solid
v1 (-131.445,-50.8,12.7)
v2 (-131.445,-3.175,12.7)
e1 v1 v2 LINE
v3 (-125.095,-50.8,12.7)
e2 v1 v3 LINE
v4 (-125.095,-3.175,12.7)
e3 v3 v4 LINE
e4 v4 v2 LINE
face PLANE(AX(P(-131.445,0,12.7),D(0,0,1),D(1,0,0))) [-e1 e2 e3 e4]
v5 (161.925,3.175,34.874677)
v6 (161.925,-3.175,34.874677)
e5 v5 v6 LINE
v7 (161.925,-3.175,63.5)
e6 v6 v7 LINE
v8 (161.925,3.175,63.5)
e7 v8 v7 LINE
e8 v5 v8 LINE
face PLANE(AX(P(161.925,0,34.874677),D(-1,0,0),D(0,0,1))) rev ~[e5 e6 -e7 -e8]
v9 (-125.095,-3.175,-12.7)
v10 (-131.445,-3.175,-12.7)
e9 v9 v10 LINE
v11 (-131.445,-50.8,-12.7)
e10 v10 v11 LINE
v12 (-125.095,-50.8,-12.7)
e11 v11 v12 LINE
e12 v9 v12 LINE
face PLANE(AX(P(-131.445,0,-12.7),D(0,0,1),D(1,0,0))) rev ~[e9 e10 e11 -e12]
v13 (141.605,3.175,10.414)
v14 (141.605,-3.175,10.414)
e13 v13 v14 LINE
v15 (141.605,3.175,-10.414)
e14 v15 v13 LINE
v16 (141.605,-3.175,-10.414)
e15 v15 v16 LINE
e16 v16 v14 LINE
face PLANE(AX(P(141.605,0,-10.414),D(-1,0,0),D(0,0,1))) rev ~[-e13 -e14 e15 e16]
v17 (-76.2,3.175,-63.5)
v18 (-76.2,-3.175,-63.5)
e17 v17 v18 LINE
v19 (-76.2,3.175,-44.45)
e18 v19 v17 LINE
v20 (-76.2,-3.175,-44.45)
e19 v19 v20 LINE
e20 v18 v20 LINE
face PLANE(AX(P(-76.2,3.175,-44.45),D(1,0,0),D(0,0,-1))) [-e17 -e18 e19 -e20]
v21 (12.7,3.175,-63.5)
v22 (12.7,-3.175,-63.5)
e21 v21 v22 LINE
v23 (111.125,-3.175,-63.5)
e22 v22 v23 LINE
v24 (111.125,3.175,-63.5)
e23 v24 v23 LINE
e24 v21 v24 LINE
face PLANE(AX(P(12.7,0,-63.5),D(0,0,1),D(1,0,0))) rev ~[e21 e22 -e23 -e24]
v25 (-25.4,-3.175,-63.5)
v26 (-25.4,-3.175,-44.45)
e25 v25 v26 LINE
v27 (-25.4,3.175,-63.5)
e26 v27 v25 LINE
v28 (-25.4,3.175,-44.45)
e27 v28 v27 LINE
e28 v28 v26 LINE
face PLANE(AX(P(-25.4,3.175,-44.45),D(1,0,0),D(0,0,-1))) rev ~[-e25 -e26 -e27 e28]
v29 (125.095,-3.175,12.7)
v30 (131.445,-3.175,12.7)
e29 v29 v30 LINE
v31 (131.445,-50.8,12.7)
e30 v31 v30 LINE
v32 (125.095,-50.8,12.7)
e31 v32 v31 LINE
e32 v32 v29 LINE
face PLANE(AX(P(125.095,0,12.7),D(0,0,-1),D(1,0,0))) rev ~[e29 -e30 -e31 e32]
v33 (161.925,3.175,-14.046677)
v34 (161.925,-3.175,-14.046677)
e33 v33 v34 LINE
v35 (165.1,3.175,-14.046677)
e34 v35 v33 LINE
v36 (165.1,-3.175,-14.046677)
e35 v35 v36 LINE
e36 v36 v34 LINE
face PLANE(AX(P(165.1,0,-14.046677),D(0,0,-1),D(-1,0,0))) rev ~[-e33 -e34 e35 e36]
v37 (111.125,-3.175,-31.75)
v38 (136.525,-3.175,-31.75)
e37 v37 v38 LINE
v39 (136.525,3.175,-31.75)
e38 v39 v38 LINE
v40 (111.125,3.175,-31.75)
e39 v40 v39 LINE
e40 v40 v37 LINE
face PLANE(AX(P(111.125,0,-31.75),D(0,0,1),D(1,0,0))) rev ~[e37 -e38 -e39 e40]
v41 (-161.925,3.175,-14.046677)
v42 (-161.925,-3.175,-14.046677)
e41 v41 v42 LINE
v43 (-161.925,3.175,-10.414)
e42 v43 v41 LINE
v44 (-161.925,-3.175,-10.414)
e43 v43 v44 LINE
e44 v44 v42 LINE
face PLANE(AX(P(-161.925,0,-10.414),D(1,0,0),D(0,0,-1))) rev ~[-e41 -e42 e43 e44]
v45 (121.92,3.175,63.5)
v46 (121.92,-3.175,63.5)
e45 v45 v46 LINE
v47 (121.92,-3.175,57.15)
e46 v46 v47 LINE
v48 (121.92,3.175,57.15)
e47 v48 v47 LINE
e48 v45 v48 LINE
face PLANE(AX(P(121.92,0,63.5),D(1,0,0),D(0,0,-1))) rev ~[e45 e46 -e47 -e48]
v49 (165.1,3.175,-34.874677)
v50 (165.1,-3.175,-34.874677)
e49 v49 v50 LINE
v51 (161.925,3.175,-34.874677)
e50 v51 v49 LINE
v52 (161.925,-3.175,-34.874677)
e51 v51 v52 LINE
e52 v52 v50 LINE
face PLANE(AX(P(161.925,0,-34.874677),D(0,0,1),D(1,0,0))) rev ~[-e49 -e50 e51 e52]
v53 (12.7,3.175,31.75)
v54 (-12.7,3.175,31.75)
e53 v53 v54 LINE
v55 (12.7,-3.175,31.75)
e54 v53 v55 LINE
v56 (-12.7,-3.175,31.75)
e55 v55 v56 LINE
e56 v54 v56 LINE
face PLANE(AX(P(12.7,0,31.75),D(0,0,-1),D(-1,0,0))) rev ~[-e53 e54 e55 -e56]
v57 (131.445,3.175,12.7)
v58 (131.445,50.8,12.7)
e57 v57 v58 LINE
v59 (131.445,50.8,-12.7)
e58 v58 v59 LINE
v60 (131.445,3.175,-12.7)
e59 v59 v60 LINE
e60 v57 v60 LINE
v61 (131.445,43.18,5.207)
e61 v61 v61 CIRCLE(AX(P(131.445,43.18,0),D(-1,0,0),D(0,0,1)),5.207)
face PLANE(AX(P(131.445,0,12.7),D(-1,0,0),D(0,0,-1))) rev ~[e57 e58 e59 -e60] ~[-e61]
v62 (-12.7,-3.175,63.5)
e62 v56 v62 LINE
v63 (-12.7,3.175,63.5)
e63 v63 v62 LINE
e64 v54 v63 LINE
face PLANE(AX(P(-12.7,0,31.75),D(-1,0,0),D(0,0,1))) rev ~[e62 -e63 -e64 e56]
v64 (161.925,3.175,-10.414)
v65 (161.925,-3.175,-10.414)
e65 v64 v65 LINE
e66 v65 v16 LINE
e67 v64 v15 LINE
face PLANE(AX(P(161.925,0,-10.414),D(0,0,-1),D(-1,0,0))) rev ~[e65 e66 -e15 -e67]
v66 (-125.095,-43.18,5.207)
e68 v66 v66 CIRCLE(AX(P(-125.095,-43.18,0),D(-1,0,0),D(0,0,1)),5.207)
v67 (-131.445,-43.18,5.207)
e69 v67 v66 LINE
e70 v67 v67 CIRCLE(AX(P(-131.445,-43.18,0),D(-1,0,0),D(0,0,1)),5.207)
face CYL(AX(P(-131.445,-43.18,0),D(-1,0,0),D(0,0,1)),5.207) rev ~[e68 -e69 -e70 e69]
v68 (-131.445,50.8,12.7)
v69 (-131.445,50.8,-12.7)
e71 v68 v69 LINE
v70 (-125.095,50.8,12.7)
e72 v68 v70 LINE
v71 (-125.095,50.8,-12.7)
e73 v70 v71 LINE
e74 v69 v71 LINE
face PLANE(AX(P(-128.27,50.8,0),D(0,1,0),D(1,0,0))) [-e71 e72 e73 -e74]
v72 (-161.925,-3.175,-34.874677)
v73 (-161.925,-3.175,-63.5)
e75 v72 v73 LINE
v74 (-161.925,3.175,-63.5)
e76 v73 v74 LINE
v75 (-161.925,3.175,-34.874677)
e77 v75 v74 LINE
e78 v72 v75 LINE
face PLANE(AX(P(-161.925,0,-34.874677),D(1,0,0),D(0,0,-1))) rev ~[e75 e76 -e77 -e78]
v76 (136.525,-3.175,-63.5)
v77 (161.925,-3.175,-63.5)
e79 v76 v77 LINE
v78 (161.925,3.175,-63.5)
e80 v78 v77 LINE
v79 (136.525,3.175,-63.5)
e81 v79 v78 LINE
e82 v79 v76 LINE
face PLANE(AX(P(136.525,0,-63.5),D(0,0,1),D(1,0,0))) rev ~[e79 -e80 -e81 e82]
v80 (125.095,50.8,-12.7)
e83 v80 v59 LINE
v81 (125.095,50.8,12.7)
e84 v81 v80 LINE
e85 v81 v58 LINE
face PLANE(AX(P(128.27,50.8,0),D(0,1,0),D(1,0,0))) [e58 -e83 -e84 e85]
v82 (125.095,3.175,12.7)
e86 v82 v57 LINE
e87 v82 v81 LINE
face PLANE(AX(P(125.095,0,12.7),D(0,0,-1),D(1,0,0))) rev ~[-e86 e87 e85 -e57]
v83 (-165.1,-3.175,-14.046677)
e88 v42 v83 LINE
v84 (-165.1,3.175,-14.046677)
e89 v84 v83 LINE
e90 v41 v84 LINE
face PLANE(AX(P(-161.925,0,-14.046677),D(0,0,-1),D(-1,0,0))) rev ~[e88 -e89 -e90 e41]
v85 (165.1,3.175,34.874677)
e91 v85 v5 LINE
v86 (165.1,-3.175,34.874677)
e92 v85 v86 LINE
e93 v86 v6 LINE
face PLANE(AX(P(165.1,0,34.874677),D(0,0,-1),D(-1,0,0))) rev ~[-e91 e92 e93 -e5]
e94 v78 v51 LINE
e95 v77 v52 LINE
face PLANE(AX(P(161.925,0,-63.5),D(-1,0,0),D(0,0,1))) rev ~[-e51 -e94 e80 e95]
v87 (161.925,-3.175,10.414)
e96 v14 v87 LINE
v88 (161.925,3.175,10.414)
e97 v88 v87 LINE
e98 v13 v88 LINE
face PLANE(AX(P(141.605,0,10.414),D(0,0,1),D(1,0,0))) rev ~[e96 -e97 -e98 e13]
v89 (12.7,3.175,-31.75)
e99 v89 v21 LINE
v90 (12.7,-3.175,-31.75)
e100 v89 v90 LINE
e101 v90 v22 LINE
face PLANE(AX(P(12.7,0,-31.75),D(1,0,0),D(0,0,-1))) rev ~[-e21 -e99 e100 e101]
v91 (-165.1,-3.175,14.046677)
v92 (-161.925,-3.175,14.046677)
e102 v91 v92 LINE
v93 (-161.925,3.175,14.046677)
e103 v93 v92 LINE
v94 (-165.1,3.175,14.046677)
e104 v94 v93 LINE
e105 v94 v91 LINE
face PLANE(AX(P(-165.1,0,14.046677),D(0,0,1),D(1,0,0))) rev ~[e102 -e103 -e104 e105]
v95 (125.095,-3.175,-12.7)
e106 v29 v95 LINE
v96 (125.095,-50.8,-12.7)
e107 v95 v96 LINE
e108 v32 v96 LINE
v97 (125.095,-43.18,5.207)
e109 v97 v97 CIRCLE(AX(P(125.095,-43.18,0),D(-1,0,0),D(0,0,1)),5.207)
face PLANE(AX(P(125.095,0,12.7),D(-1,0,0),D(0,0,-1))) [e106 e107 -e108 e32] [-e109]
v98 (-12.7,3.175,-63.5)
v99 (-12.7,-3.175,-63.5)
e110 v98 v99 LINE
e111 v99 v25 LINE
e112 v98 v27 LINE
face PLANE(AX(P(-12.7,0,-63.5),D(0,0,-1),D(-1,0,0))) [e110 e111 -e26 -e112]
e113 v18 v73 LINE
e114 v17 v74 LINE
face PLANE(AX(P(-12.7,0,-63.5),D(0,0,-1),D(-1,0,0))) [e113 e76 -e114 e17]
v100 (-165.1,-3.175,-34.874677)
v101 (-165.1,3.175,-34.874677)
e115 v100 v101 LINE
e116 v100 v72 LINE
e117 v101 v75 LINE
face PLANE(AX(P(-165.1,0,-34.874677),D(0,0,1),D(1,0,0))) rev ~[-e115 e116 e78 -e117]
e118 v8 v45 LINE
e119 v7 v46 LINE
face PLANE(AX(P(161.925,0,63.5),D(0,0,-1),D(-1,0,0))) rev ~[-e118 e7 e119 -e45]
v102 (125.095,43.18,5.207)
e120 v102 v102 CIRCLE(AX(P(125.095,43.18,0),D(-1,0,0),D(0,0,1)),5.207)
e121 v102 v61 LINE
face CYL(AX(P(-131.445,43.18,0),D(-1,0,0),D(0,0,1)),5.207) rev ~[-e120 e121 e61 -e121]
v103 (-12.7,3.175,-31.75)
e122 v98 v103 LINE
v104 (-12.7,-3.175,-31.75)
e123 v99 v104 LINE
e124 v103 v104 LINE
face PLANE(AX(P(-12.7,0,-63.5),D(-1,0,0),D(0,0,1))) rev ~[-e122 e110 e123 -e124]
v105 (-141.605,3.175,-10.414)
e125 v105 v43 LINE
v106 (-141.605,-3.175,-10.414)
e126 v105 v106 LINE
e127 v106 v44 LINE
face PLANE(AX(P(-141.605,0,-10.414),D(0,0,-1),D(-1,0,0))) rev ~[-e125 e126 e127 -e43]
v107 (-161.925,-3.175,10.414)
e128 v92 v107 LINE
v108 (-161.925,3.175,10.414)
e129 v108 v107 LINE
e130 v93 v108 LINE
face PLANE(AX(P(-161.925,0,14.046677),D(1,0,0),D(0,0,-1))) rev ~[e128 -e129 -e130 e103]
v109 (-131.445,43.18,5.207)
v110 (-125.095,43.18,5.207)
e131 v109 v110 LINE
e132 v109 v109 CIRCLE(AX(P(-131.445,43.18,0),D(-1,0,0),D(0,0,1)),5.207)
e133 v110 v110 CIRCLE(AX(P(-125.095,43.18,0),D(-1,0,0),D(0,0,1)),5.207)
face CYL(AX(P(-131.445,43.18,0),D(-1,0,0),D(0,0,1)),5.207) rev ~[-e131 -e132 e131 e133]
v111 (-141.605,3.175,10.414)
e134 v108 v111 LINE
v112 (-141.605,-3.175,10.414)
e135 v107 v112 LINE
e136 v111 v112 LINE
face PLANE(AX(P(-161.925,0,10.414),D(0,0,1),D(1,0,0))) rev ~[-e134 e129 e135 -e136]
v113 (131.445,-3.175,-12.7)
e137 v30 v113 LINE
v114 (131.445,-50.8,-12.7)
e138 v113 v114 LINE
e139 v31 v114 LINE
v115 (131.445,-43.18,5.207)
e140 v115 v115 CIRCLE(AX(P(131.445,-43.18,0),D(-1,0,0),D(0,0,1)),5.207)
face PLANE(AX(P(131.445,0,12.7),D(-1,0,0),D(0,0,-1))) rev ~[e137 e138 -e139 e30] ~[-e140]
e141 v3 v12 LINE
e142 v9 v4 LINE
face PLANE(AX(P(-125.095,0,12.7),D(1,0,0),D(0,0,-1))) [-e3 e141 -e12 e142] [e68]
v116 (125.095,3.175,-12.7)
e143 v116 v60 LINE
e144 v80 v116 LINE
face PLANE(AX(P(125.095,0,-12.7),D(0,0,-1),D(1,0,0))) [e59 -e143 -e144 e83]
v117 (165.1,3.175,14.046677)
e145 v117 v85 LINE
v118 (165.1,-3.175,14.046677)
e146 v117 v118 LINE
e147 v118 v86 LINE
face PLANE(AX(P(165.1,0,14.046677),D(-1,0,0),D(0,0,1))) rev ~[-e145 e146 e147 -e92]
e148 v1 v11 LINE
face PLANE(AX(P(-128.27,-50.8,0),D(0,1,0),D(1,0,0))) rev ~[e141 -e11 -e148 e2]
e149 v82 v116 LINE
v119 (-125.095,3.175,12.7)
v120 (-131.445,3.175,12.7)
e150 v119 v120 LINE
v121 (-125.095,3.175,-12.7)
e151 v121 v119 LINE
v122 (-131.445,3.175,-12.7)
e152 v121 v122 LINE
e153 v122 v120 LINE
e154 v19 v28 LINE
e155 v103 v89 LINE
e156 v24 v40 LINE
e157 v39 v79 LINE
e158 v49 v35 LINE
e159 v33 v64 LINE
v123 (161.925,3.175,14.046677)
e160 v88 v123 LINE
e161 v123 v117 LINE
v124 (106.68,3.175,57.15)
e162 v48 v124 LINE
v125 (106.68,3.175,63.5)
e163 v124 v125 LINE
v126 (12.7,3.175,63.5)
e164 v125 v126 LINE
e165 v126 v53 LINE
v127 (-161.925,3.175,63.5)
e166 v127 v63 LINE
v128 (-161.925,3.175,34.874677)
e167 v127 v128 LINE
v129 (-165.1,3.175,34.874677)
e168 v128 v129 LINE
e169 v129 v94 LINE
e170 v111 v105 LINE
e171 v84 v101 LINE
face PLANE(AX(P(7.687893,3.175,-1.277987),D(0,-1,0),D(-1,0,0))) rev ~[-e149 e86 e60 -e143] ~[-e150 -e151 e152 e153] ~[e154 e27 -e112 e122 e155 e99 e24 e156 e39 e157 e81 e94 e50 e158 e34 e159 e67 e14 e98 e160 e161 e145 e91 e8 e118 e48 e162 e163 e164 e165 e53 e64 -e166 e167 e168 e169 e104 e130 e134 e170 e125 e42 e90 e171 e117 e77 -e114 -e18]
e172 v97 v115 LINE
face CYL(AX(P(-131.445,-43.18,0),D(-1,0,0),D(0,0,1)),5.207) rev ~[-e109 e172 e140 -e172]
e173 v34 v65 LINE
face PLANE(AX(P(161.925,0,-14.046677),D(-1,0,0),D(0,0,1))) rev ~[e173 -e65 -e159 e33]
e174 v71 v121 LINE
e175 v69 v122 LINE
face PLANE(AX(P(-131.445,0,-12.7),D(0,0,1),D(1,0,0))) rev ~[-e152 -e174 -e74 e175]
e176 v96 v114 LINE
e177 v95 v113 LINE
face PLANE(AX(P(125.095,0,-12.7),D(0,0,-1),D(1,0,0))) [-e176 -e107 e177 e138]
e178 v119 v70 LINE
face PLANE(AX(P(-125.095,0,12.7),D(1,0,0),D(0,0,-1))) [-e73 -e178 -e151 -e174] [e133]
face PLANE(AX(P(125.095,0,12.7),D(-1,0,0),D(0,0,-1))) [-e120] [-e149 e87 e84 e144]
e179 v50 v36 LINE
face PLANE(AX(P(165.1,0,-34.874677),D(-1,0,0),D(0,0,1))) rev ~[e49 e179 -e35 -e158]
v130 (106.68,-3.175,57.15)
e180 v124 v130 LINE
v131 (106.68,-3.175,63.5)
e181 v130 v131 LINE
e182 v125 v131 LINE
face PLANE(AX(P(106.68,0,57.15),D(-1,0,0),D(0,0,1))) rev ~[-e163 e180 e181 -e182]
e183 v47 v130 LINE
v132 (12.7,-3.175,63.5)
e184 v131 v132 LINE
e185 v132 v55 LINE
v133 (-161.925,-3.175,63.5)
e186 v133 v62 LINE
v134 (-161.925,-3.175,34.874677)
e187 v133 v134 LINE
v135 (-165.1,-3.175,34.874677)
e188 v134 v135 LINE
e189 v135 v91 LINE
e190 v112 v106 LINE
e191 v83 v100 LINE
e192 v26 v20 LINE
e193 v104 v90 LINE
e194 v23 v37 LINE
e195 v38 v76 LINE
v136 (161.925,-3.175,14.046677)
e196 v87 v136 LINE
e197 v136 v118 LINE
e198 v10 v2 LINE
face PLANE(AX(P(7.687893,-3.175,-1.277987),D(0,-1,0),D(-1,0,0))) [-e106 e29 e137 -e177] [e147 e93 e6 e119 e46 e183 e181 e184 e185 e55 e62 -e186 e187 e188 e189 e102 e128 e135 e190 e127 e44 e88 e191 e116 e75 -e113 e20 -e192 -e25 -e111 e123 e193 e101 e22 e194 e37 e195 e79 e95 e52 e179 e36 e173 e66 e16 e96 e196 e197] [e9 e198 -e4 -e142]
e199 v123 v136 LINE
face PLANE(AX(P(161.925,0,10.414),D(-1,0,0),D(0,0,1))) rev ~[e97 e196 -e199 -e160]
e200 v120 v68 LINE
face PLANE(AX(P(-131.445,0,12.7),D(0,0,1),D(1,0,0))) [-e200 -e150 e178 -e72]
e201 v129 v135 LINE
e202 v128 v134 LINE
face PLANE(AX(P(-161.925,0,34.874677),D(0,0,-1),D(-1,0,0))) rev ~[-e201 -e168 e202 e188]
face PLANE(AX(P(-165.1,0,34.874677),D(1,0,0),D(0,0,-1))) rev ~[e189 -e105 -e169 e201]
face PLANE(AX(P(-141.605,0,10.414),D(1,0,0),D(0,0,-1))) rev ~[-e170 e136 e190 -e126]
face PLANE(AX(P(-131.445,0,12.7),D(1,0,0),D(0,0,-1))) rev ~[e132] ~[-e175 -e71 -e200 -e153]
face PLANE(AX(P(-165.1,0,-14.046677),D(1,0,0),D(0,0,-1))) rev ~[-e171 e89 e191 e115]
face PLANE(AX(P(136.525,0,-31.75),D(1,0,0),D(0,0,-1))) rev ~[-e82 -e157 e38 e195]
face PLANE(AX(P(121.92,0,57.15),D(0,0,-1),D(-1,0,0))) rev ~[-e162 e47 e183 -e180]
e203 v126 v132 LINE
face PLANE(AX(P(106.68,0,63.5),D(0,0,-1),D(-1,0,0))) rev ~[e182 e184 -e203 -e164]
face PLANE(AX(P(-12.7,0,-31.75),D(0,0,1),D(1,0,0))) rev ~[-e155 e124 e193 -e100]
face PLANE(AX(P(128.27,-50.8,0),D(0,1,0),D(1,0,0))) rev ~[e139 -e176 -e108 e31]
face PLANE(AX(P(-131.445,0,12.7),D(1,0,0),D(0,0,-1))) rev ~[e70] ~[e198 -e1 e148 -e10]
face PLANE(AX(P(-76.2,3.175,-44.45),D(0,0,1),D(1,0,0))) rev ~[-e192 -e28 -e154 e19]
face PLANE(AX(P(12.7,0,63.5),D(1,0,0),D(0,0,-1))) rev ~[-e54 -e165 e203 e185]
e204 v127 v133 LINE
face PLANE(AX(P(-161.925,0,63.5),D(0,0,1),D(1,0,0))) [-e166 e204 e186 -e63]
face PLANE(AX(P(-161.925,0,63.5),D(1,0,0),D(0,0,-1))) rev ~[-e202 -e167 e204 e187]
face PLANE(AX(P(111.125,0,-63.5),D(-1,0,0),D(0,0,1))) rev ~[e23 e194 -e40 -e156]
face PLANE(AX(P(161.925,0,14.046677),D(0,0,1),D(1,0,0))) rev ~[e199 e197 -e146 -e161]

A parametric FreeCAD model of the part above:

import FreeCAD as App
import Part
import Sketcher
from FreeCAD import Vector
Q = App.Units.Quantity


def add_polygon(sketch, points):
    """Adds a closed chain of lines whose ends are joined by coincident constraints."""
    first, n = sketch.GeometryCount, len(points)
    for a, b in zip(points, points[1:] + points[:1]):
        sketch.addGeometry(Part.LineSegment(App.Vector(*a, 0), App.Vector(*b, 0)), False)
    for i in range(n):
        sketch.addConstraint(Sketcher.Constraint("Coincident", first + i, 2, first + (i + 1) % n, 1))

doc = App.newDocument("Part")
body = doc.addObject("PartDesign::Body", "Body")

sketch1 = body.newObject("Sketcher::SketchObject", "Sketch")
sketch1.AttachmentSupport = (doc.getObject("XZ_Plane"), [""])
sketch1.MapMode = "FlatFace"
add_polygon(sketch1, [(-12.7, -63.5), (-161.925, -63.5), (-161.925, -34.874677), (-165.1, -34.874677), (-165.1, -14.046677), (-161.925, -14.046677), (-161.925, -10.414), (-141.605, -10.414), (-141.605, 10.414), (-161.925, 10.414), (-161.925, 14.046677), (-165.1, 14.046677), (-165.1, 34.874677), (-161.925, 34.874677), (-161.925, 63.5), (-12.7, 63.5), (-12.7, 31.75), (12.7, 31.75), (12.7, 63.5), (106.68, 63.5), (106.68, 57.15), (121.92, 57.15), (121.92, 63.5), (161.925, 63.5), (161.925, 34.874677), (165.1, 34.874677), (165.1, 14.046677), (161.925, 14.046677), (161.925, 10.414), (141.605, 10.414), (141.605, -10.414), (161.925, -10.414), (161.925, -14.046677), (165.1, -14.046677), (165.1, -34.874677), (161.925, -34.874677), (161.925, -63.5), (136.525, -63.5), (136.525, -31.75), (111.125, -31.75), (111.125, -63.5), (12.7, -63.5), (12.7, -31.75), (-12.7, -31.75)])
sketch1.addConstraint([
    Sketcher.Constraint("Horizontal", 0),
    Sketcher.Constraint("Vertical", 1),
    Sketcher.Constraint("Horizontal", 2),
    Sketcher.Constraint("Vertical", 3),
    Sketcher.Constraint("Horizontal", 4),
    Sketcher.Constraint("Vertical", 5),
    Sketcher.Constraint("Horizontal", 6),
    Sketcher.Constraint("Vertical", 7),
    Sketcher.Constraint("Horizontal", 8),
    Sketcher.Constraint("Vertical", 9),
    Sketcher.Constraint("Horizontal", 10),
    Sketcher.Constraint("Vertical", 11),
    Sketcher.Constraint("Horizontal", 12),
    Sketcher.Constraint("Vertical", 13),
    Sketcher.Constraint("Horizontal", 14),
    Sketcher.Constraint("Vertical", 15),
    Sketcher.Constraint("Horizontal", 16),
    Sketcher.Constraint("Vertical", 17),
    Sketcher.Constraint("Horizontal", 18),
    Sketcher.Constraint("Vertical", 19),
    Sketcher.Constraint("Horizontal", 20),
    Sketcher.Constraint("Vertical", 21),
    Sketcher.Constraint("Horizontal", 22),
    Sketcher.Constraint("Vertical", 23),
    Sketcher.Constraint("Horizontal", 24),
    Sketcher.Constraint("Vertical", 25),
    Sketcher.Constraint("Horizontal", 26),
    Sketcher.Constraint("Vertical", 27),
    Sketcher.Constraint("Horizontal", 28),
    Sketcher.Constraint("Vertical", 29),
    Sketcher.Constraint("Horizontal", 30),
    Sketcher.Constraint("Vertical", 31),
    Sketcher.Constraint("Horizontal", 32),
    Sketcher.Constraint("Vertical", 33),
    Sketcher.Constraint("Horizontal", 34),
    Sketcher.Constraint("Vertical", 35),
    Sketcher.Constraint("Horizontal", 36),
    Sketcher.Constraint("Vertical", 37),
    Sketcher.Constraint("Horizontal", 38),
    Sketcher.Constraint("Vertical", 39),
    Sketcher.Constraint("Horizontal", 40),
    Sketcher.Constraint("Vertical", 41),
    Sketcher.Constraint("Horizontal", 42),
    Sketcher.Constraint("Vertical", 43),
    Sketcher.Constraint("Symmetric", 0, 2, 22, 2, -1, 1),
    Sketcher.Constraint("Symmetric", 2, 2, 24, 2, -1, 1),
    Sketcher.Constraint("Symmetric", 4, 2, 26, 2, -1, 1),
    Sketcher.Constraint("Symmetric", 6, 2, 28, 2, -1, 1),
    Sketcher.Constraint("Symmetric", 8, 2, 30, 2, -1, 1),
    Sketcher.Constraint("Symmetric", 10, 2, 32, 2, -1, 1),
    Sketcher.Constraint("Symmetric", 12, 2, 34, 2, -1, 1),
    Sketcher.Constraint("Symmetric", 14, 2, 40, 2, -1, 1),
    Sketcher.Constraint("Symmetric", 16, 2, 42, 2, -1, 1),
    Sketcher.Constraint("Symmetric", 14, 2, 17, 2, -2),
    Sketcher.Constraint("Symmetric", 13, 2, 22, 2, -2),
    Sketcher.Constraint("Symmetric", 11, 2, 24, 2, -2),
    Sketcher.Constraint("Symmetric", 9, 2, 26, 2, -2),
    Sketcher.Constraint("Horizontal", 8, 2, 27, 2),
    Sketcher.Constraint("Horizontal", 0, 2, 35, 2),
    Sketcher.Constraint("Horizontal", 38, 2, 41, 2),
    Sketcher.Constraint("Vertical", 1, 2, 4, 2),
    Sketcher.Constraint("Equal", 16, 36),
    Sketcher.Constraint("Equal", 36, 38),
    Sketcher.Constraint("Equal", 3, 7),
    Sketcher.Constraint("DistanceX", 16, 1, 16, 2, Q("1 in")),
    Sketcher.Constraint("DistanceX", 6, 1, 6, 2, Q("0.8 in")),
    Sketcher.Constraint("DistanceX", 18, 1, 18, 2, Q("3.7 in")),
    Sketcher.Constraint("DistanceX", 20, 1, 20, 2, Q("0.6 in")),
    Sketcher.Constraint("DistanceX", 11, 2, 14, 2, Q("6 in")),
    Sketcher.Constraint("DistanceY", 16, 2, 19, 2, Q("1 in")),
    Sketcher.Constraint("DistanceY", 3, 1, 3, 2, Q("0.82 in")),
    Sketcher.Constraint("DistanceY", 15, 2, 15, 1, Q("1.25 in")),
    Sketcher.Constraint("DistanceY", 0, 2, -1, 1, Q("2.5 in")),
    Sketcher.Constraint("DistanceX", 0, 2, 0, 1, Q("5.875 in")),
    Sketcher.Constraint("DistanceY", 1, 1, 1, 2, 28.625323),
])
pad1 = body.newObject("PartDesign::Pad", "Pad")
pad1.Profile = sketch1
pad1.Length = Q("0.25 in")
pad1.Midplane = True

sketch2 = body.newObject("Sketcher::SketchObject", "Sketch001")
sketch2.AttachmentSupport = (doc.getObject("XZ_Plane"), [""])
sketch2.MapMode = "FlatFace"
add_polygon(sketch2, [(125.095, -12.7), (125.095, 12.7), (131.445, 12.7), (131.445, -12.7)])
add_polygon(sketch2, [(-131.445, -12.7), (-131.445, 12.7), (-125.095, 12.7), (-125.095, -12.7)])
sketch2.addConstraint([
    Sketcher.Constraint("Vertical", 0),
    Sketcher.Constraint("Horizontal", 1),
    Sketcher.Constraint("Vertical", 2),
    Sketcher.Constraint("Horizontal", 3),
    Sketcher.Constraint("Vertical", 4),
    Sketcher.Constraint("Horizontal", 5),
    Sketcher.Constraint("Vertical", 6),
    Sketcher.Constraint("Horizontal", 7),
    Sketcher.Constraint("Symmetric", 2, 2, 4, 2, -1, 1),
    Sketcher.Constraint("Symmetric", 0, 2, 6, 2, -1, 1),
    Sketcher.Constraint("Horizontal", 1, 2, 4, 2),
    Sketcher.Constraint("DistanceY", 0, 1, 0, 2, Q("1 in")),
    Sketcher.Constraint("DistanceX", 1, 1, 1, 2, Q("0.25 in")),
    Sketcher.Constraint("DistanceX", 4, 2, 0, 2, Q("10.1 in")),
])
pad2 = body.newObject("PartDesign::Pad", "Pad001")
pad2.Profile = sketch2
pad2.Length = Q("4 in")
pad2.Midplane = True

sketch3 = body.newObject("Sketcher::SketchObject", "Sketch002")
sketch3.AttachmentSupport = (doc.getObject("YZ_Plane"), [""])
sketch3.MapMode = "FlatFace"
sketch3.AttachmentOffset = App.Placement(Vector(0, 0, -5.175 * 25.4), App.Rotation())
sketch3.addGeometry([
    Part.Circle(Vector(43.18, 0, 0), Vector(0, 0, 1), 5.207),
    Part.Circle(Vector(-43.18, 0, 0), Vector(0, 0, 1), 5.207),
], False)
sketch3.addConstraint([
    Sketcher.Constraint("Equal", 0, 1),
    Sketcher.Constraint("Symmetric", 0, 3, 1, 3, -1, 1),
    Sketcher.Constraint("PointOnObject", 0, 3, -1),
    Sketcher.Constraint("Diameter", 0, Q("0.41 in")),
    Sketcher.Constraint("DistanceX", -1, 1, 0, 3, Q("1.7 in")),
])
pocket1 = body.newObject("PartDesign::Pocket", "Pocket")
pocket1.Profile = sketch3
pocket1.Type = "ThroughAll"
pocket1.Midplane = True

sketch4 = body.newObject("Sketcher::SketchObject", "Sketch003")
sketch4.AttachmentSupport = (doc.getObject("XZ_Plane"), [""])
sketch4.MapMode = "FlatFace"
sketch4.AttachmentOffset = App.Placement(Vector(0, 0, -0.125 * 25.4), App.Rotation())
add_polygon(sketch4, [(-76.2, -63.5), (-76.2, -44.45), (-25.4, -44.45), (-25.4, -63.5)])
sketch4.addConstraint([
    Sketcher.Constraint("Vertical", 0),
    Sketcher.Constraint("Horizontal", 1),
    Sketcher.Constraint("Vertical", 2),
    Sketcher.Constraint("Horizontal", 3),
    Sketcher.Constraint("DistanceX", 1, 1, 1, 2, Q("2 in")),
    Sketcher.Constraint("DistanceX", 0, 2, -1, 1, Q("3 in")),
    Sketcher.Constraint("DistanceY", 0, 1, 0, 2, Q("0.75 in")),
    Sketcher.Constraint("DistanceY", 2, 2, -1, 1, Q("2.5 in")),
])
pocket2 = body.newObject("PartDesign::Pocket", "Pocket001")
pocket2.Profile = sketch4
pocket2.Type = "ThroughAll"
pocket2.Reversed = True

doc.recompute()
